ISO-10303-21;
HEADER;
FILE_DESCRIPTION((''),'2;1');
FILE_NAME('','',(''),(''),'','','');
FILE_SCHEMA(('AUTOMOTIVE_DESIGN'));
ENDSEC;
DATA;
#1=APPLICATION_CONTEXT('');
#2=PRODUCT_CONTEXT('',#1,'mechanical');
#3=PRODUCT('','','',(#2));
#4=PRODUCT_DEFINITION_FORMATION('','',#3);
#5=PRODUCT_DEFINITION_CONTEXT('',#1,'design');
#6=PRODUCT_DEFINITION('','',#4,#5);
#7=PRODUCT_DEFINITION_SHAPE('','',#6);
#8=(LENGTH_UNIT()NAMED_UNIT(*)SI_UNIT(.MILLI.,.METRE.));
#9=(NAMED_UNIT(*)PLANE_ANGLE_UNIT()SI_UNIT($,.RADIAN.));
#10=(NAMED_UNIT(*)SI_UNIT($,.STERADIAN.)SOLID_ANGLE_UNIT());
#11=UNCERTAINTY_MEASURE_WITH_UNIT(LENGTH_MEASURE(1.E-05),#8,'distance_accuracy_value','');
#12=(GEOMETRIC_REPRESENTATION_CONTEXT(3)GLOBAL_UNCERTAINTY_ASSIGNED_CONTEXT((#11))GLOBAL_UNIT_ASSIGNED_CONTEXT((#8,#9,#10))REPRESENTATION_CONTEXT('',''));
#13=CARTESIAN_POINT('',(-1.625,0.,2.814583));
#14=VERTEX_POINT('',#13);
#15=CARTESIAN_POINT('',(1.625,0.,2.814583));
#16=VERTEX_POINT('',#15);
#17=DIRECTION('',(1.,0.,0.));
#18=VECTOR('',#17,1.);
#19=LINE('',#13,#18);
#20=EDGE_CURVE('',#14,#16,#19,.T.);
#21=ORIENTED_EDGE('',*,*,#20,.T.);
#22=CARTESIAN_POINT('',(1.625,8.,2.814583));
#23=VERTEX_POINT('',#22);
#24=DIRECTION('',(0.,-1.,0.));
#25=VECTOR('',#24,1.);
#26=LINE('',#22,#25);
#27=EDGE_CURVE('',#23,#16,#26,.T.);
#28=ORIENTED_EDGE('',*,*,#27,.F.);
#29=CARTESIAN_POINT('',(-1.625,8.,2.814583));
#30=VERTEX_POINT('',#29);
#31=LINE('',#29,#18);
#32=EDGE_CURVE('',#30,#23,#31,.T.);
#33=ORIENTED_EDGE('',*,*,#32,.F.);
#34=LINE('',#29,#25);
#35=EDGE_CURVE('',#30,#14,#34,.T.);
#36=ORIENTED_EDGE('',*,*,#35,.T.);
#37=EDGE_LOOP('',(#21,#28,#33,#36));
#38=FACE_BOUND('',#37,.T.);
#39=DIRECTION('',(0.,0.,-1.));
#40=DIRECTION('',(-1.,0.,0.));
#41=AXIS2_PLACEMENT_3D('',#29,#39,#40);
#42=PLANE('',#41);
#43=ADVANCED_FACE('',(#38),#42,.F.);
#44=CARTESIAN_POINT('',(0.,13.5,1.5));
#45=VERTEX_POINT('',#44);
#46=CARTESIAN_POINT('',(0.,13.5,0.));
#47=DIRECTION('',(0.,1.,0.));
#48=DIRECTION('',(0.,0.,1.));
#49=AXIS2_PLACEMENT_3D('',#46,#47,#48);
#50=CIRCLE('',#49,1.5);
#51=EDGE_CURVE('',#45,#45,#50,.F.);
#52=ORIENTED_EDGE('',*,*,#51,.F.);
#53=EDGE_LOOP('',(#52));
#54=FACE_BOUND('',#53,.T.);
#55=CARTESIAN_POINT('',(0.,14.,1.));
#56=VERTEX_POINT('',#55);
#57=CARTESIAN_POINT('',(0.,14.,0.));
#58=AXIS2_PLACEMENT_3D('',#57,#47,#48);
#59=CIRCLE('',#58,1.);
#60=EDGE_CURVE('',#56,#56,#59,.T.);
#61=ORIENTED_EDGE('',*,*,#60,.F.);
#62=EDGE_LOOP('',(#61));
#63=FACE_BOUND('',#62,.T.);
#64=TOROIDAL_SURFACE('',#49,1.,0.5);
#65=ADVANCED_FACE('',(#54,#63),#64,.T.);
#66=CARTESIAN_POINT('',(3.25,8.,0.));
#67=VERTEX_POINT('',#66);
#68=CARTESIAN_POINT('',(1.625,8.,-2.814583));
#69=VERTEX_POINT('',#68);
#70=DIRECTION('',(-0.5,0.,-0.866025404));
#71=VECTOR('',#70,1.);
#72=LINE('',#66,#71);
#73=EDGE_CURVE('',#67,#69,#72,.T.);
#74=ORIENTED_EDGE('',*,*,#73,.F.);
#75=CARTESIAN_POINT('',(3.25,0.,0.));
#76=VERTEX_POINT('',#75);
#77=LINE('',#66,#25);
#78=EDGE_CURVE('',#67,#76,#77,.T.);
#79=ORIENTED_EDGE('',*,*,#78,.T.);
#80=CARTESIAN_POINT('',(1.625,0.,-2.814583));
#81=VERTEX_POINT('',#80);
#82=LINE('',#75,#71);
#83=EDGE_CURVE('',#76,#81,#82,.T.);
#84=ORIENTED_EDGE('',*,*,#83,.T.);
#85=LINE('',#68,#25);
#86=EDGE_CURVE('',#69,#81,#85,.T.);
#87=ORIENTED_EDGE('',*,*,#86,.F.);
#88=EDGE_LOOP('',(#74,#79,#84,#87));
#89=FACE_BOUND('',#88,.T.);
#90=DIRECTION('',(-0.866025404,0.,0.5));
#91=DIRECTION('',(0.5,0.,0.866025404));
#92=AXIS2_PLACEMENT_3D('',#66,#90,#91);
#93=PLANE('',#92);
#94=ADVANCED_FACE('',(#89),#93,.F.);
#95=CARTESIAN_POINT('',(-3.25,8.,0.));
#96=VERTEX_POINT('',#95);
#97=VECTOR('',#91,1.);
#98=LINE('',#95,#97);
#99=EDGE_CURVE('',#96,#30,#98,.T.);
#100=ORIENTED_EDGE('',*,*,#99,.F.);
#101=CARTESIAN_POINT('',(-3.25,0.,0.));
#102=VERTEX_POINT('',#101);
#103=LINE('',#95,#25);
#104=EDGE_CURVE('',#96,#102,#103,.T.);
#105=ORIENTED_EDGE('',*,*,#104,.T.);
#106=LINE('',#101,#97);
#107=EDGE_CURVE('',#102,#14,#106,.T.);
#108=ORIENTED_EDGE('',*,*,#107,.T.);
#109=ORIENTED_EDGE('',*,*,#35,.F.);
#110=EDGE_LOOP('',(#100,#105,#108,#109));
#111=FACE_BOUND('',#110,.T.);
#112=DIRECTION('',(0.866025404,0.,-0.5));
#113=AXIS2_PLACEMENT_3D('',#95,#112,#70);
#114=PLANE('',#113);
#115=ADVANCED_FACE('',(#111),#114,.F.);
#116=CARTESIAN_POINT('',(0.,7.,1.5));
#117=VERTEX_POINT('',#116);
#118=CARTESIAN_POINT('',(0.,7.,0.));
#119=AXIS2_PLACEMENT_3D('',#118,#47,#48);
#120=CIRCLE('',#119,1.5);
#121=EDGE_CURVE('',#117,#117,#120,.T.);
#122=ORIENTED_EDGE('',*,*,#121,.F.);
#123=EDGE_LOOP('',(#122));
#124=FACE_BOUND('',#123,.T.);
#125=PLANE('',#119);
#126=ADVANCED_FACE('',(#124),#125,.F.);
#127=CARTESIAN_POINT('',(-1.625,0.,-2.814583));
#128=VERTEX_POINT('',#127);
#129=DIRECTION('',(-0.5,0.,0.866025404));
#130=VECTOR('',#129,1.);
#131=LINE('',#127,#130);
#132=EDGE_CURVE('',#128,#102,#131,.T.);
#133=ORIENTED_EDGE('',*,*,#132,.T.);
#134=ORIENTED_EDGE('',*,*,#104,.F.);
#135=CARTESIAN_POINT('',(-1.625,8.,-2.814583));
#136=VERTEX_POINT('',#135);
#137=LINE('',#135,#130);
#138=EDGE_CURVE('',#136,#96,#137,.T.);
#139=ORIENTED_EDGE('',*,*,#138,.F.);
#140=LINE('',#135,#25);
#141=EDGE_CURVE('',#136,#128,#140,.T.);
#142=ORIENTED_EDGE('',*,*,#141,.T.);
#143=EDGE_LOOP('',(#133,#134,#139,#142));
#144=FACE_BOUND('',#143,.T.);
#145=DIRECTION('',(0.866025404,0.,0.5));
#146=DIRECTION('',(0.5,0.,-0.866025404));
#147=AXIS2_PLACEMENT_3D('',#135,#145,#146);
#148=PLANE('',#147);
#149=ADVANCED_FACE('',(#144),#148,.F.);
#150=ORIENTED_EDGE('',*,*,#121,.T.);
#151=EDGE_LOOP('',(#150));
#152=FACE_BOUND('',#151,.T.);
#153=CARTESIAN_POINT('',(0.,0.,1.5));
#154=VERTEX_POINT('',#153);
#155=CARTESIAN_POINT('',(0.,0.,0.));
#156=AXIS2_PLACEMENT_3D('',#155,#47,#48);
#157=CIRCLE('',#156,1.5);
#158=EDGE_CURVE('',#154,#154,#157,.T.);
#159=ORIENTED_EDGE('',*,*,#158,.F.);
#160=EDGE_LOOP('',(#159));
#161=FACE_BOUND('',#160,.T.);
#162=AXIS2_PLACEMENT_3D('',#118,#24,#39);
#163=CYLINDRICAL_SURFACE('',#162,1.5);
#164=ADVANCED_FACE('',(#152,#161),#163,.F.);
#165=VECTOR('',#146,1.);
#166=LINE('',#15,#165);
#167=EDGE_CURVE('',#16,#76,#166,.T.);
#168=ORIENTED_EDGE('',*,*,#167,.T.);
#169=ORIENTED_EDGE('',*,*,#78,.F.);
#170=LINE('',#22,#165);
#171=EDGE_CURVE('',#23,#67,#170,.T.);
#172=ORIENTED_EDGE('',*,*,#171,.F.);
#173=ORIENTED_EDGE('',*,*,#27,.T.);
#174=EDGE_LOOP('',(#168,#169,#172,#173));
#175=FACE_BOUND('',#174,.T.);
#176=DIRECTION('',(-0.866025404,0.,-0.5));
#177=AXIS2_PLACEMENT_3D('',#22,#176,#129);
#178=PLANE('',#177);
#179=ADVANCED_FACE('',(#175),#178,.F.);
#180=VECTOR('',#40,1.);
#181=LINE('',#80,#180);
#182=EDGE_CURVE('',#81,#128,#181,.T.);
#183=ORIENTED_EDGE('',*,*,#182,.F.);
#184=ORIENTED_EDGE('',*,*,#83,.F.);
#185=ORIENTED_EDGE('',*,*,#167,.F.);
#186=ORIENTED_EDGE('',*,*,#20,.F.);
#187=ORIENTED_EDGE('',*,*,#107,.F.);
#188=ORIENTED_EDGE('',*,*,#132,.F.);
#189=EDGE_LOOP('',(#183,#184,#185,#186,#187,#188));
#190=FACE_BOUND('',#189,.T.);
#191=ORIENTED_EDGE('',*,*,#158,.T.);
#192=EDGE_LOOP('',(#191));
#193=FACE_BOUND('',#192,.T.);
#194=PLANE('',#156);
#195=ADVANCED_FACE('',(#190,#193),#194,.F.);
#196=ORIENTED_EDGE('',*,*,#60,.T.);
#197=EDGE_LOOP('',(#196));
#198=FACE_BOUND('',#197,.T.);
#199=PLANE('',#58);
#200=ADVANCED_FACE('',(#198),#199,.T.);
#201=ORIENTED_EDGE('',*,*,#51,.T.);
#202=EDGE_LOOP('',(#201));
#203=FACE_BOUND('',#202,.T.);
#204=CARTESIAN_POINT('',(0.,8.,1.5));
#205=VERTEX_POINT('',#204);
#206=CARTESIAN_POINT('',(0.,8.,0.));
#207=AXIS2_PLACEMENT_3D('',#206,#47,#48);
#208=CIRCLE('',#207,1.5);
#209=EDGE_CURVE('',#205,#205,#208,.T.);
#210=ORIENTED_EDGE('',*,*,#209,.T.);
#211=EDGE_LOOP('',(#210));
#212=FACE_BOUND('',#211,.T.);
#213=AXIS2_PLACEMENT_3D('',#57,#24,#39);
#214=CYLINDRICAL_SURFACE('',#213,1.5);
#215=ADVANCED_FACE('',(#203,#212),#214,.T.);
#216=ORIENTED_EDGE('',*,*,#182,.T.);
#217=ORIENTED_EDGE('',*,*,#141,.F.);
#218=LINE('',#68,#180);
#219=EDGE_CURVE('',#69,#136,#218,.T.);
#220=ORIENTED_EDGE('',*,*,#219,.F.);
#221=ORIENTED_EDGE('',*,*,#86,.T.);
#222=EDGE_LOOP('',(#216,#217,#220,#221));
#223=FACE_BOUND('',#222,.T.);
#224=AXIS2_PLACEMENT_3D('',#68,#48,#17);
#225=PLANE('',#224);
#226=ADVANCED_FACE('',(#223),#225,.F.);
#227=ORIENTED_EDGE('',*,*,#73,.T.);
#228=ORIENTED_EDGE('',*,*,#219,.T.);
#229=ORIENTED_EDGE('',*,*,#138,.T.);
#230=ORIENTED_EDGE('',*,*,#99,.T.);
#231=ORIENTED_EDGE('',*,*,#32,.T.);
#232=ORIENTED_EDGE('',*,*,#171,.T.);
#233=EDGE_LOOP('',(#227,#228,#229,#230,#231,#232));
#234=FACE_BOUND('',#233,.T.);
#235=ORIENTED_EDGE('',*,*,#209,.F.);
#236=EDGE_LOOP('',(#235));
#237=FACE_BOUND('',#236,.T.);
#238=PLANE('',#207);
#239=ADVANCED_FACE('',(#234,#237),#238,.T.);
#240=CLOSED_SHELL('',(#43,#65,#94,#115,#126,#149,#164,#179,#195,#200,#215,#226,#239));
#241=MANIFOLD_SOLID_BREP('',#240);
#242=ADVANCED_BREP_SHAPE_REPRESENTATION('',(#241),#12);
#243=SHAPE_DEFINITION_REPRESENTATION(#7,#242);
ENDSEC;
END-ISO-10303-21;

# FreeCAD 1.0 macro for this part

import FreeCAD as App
import Part
import Sketcher

V = App.Vector
Q = App.Units.Quantity


def edges_at(feature, points):
    """Names of the edges that pass closest to the given points."""
    edges = feature.Shape.Edges
    near = lambda p: min(range(len(edges)), key=lambda i: edges[i].distToShape(Part.Vertex(*p))[0])
    return sorted({f"Edge{near(p) + 1}" for p in points})

doc = App.newDocument("Part")
body = doc.addObject("PartDesign::Body", "Body")

sketch1 = body.newObject("Sketcher::SketchObject", "Sketch")
sketch1.AttachmentSupport = (doc.getObject("XZ_Plane"), [""])
sketch1.MapMode = "FlatFace"
sketch1.addGeometry(Part.Circle(V(0, 0, 0), V(0, 0, 1), 1.5), False)
sketch1.addConstraint(Sketcher.Constraint("Coincident", 0, 3, -1, 1))
sketch1.addConstraint(Sketcher.Constraint("Diameter", 0, 3.0))
pad1 = body.newObject("PartDesign::Pad", "Pad")
pad1.Profile = sketch1
pad1.Length = 14
pad1.Reversed = True
doc.recompute()

fillet = body.newObject("PartDesign::Fillet", "Fillet")
fillet.Base = (pad1, edges_at(pad1, [(0, 14, -1.5)]))
fillet.Radius = 0.5

sketch2 = body.newObject("Sketcher::SketchObject", "Sketch001")
sketch2.AttachmentSupport = (doc.getObject("XZ_Plane"), [""])
sketch2.MapMode = "FlatFace"
sketch2.addGeometry(Part.LineSegment(V(-1.6, -2.8, 0), V(-3.2, 0, 0)), False)
sketch2.addGeometry(Part.LineSegment(V(-3.2, 0, 0), V(-1.6, 2.8, 0)), False)
sketch2.addGeometry(Part.LineSegment(V(-1.6, 2.8, 0), V(1.6, 2.8, 0)), False)
sketch2.addGeometry(Part.LineSegment(V(1.6, 2.8, 0), V(3.2, 0, 0)), False)
sketch2.addGeometry(Part.LineSegment(V(3.2, 0, 0), V(1.6, -2.8, 0)), False)
sketch2.addGeometry(Part.LineSegment(V(1.6, -2.8, 0), V(-1.6, -2.8, 0)), False)
sketch2.addGeometry(Part.Circle(V(0, 0, 0), V(0, 0, 1), 1.5), False)
sketch2.addConstraint(Sketcher.Constraint("Coincident", 0, 2, 1, 1))
sketch2.addConstraint(Sketcher.Constraint("Coincident", 1, 2, 2, 1))
sketch2.addConstraint(Sketcher.Constraint("Coincident", 2, 2, 3, 1))
sketch2.addConstraint(Sketcher.Constraint("Coincident", 3, 2, 4, 1))
sketch2.addConstraint(Sketcher.Constraint("Coincident", 4, 2, 5, 1))
sketch2.addConstraint(Sketcher.Constraint("Coincident", 5, 2, 0, 1))
sketch2.addConstraint(Sketcher.Constraint("Horizontal", 2))
sketch2.addConstraint(Sketcher.Constraint("Horizontal", 5))
sketch2.addConstraint(Sketcher.Constraint("Coincident", 6, 3, -1, 1))
sketch2.addConstraint(Sketcher.Constraint("Symmetric", 0, 2, 3, 2, -1, 1))
sketch2.addConstraint(Sketcher.Constraint("Symmetric", 1, 2, 4, 2, -1, 1))
sketch2.addConstraint(Sketcher.Constraint("PointOnObject", 0, 2, -1))
sketch2.addConstraint(Sketcher.Constraint("Parallel", 0, 3))
sketch2.addConstraint(Sketcher.Constraint("Vertical", 2, 2, 4, 2))
sketch2.addConstraint(Sketcher.Constraint("Diameter", 6, 3.0))
sketch2.addConstraint(Sketcher.Constraint("Angle", 0, Q("120 deg")))
sketch2.addConstraint(Sketcher.Constraint("DistanceX", 2, 1, 2, 2, 3.25))
sketch2.addConstraint(Sketcher.Constraint("DistanceX", 0, 2, 3, 2, 6.5))
pad2 = body.newObject("PartDesign::Pad", "Pad001")
pad2.Profile = sketch2
pad2.Length = 8
pad2.Reversed = True

sketch3 = body.newObject("Sketcher::SketchObject", "Sketch002")
sketch3.AttachmentSupport = (doc.getObject("XZ_Plane"), [""])
sketch3.MapMode = "FlatFace"
sketch3.addGeometry(Part.Circle(V(0, 0, 0), V(0, 0, 1), 1.5), False)
sketch3.addConstraint(Sketcher.Constraint("Coincident", 0, 3, -1, 1))
sketch3.addConstraint(Sketcher.Constraint("Diameter", 0, 3.0))
pocket1 = body.newObject("PartDesign::Pocket", "Pocket")
pocket1.Profile = sketch3
pocket1.Length = 7

doc.recompute()
